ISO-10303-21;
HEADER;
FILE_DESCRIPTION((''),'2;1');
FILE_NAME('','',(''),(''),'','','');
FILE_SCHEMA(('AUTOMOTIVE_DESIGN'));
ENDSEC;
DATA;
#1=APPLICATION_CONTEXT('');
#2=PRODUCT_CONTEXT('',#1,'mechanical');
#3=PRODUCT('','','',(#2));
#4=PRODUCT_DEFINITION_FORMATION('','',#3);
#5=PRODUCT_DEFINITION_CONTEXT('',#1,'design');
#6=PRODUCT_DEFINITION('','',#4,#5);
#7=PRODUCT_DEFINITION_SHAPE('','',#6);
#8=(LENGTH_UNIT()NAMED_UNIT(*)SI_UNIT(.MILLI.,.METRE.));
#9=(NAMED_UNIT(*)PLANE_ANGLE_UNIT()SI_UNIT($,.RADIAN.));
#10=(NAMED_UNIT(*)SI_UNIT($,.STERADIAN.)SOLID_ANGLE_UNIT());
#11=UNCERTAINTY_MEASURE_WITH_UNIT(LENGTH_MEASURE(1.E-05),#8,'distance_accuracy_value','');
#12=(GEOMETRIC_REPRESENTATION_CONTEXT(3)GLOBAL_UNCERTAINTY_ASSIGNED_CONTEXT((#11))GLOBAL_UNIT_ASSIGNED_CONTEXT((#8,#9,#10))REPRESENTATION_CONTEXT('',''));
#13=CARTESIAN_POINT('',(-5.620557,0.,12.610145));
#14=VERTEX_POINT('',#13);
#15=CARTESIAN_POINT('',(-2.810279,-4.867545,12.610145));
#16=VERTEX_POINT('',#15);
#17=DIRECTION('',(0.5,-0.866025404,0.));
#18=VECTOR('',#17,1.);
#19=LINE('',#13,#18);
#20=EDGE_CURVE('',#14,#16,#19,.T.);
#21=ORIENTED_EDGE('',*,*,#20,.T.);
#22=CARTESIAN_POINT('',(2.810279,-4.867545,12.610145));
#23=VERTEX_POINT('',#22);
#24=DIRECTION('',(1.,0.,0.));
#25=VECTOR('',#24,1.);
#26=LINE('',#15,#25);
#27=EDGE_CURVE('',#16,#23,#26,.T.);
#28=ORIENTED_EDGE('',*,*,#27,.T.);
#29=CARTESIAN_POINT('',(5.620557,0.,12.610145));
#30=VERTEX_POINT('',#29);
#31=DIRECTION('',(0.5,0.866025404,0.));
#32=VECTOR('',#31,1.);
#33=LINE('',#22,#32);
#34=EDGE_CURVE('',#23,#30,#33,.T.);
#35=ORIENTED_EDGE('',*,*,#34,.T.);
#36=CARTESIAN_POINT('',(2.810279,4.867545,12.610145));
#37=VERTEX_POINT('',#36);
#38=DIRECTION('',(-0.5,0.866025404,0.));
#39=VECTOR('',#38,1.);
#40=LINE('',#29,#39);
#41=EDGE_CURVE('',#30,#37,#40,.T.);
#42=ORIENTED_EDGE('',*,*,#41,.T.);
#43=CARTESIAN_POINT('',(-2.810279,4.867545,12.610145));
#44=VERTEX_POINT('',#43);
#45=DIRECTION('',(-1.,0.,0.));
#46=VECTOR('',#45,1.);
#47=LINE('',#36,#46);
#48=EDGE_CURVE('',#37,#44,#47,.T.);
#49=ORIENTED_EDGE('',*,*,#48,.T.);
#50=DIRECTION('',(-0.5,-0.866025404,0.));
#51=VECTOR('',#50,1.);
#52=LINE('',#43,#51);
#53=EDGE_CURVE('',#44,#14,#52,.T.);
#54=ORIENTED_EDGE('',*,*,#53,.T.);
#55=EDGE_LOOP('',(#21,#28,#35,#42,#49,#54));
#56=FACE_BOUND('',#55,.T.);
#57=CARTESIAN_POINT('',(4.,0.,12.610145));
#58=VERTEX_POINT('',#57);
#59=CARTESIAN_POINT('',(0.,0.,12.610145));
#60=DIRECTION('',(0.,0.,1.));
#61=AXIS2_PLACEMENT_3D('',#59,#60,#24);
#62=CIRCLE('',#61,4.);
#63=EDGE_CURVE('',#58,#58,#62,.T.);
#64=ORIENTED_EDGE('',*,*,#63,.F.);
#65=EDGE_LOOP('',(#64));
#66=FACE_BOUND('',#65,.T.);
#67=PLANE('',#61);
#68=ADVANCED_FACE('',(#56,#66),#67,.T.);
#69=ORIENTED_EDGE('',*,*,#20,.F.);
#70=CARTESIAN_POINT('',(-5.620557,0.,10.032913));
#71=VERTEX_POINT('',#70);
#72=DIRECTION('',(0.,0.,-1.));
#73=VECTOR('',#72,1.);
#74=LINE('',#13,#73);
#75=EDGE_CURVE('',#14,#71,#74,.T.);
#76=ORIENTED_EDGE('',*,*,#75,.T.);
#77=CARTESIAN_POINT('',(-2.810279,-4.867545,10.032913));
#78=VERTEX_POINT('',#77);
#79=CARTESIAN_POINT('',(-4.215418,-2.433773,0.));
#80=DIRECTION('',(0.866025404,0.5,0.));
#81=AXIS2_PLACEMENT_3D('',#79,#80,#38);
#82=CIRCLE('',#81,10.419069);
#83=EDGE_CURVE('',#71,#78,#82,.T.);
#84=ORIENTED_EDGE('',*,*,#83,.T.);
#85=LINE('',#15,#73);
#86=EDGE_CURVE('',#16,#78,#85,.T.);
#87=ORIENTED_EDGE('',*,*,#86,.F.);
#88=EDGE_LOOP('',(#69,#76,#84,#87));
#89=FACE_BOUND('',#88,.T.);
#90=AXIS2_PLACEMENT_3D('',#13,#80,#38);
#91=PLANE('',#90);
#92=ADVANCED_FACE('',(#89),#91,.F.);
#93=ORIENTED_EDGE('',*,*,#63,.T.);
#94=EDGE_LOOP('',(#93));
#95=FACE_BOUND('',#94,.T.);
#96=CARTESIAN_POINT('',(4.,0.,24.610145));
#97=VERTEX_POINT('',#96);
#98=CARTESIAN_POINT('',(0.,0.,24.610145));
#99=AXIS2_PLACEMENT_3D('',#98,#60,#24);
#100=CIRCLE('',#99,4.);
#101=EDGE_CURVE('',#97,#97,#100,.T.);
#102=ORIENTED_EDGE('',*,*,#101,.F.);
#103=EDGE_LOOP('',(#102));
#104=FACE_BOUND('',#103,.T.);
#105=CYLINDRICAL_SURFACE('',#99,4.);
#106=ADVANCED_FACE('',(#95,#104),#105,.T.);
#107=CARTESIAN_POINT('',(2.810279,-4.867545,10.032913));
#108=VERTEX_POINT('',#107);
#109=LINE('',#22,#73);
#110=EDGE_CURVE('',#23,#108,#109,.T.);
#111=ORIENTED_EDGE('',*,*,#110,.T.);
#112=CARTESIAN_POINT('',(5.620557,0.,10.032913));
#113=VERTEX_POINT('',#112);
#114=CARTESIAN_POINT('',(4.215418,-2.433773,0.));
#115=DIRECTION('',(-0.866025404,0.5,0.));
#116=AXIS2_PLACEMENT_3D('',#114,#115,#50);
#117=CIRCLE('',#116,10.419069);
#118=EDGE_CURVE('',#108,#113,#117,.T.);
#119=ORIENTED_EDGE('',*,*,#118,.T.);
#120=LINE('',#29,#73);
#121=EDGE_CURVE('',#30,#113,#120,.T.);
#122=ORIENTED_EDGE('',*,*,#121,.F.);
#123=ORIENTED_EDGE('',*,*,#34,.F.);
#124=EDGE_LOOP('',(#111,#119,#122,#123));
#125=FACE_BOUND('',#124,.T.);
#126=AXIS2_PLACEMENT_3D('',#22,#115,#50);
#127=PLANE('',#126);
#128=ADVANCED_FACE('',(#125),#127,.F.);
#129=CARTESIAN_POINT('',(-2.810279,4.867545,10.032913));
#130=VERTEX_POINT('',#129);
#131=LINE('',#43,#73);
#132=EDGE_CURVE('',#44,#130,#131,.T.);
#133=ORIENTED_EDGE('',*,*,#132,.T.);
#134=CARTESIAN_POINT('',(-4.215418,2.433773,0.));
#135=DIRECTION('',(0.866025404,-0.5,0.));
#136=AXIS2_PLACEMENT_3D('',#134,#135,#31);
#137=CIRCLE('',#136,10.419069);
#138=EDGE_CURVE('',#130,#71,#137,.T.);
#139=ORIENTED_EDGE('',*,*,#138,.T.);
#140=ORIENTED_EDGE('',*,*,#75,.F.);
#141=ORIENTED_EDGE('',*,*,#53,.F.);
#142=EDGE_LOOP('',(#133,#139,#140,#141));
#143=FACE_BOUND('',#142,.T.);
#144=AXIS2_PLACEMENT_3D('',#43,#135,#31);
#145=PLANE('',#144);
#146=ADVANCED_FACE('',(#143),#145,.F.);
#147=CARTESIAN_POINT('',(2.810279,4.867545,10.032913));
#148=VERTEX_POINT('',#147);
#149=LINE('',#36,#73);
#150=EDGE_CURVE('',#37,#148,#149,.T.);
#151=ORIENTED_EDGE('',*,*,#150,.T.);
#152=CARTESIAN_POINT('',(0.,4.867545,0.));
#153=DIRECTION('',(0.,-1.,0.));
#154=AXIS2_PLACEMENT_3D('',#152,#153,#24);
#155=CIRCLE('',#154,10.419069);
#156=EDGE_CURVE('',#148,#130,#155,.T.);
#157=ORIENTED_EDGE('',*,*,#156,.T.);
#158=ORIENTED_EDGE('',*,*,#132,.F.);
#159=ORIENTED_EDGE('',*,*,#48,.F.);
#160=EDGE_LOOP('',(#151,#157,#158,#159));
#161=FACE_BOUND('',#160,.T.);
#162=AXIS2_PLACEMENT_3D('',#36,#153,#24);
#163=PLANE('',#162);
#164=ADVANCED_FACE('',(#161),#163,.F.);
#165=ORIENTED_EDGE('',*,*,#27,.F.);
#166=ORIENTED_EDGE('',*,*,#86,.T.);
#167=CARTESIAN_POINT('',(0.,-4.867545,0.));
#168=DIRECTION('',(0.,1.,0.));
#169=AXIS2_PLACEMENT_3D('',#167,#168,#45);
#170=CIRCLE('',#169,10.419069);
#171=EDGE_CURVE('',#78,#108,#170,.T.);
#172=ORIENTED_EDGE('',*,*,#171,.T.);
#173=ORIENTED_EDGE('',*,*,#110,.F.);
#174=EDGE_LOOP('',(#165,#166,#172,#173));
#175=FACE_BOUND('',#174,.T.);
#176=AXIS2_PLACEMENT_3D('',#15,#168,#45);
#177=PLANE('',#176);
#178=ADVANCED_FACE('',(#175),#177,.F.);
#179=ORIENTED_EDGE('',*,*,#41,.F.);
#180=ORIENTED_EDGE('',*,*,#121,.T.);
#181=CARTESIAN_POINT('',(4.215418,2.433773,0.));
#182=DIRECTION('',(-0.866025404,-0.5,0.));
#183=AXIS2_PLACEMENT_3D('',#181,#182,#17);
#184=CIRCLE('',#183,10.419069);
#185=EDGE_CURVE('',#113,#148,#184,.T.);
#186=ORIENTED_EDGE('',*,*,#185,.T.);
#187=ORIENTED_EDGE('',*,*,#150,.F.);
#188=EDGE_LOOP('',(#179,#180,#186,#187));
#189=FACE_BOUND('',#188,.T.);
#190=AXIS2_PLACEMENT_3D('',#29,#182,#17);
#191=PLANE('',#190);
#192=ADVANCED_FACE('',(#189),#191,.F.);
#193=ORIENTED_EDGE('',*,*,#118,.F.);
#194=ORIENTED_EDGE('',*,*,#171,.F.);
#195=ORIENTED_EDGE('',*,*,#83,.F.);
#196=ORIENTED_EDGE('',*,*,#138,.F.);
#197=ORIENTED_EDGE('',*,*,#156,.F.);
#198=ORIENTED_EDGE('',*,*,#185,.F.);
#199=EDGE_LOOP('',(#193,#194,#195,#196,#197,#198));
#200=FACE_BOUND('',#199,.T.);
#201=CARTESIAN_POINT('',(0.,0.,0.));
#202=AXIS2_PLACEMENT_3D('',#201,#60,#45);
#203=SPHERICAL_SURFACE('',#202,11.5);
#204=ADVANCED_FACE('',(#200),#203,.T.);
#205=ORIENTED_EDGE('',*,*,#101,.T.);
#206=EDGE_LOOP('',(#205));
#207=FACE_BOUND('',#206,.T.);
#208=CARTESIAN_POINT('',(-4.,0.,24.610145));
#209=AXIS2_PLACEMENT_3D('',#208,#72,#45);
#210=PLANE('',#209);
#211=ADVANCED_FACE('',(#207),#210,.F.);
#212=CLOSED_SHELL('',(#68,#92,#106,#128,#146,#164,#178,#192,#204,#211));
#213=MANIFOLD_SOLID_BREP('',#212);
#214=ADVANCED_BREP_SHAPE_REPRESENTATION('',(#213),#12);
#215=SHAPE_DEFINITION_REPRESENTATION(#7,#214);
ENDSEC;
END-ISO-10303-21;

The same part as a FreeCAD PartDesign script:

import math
import FreeCAD as App
import Part
import Sketcher
Q = App.Units.Quantity

doc = App.newDocument("Part")
params = doc.addObject("Spreadsheet::Sheet", "Params")
for row, (alias, value) in enumerate([
    ("sketch1_radius", "11.5 mm"),
    ("revolution_angle", "360 deg"),
    ("sketch2_width", "4 mm"),
    ("sketch2_height", "15 mm"),
    ("revolution2_angle", "360 deg"),
    ("pad1_length", "3 mm"),
], start=1):
    params.set(f"A{row}", alias)
    params.set(f"B{row}", "=" + value)
    params.setAlias(f"B{row}", alias)

body = doc.addObject("PartDesign::Body", "Body")

# Sketch on XZ plane
sketch1 = doc.addObject("Sketcher::SketchObject", "Sketch")
body.addObject(sketch1)
sketch1.AttachmentSupport = (doc.XZ_Plane, [""])
sketch1.MapMode = "FlatFace"
sketch1.addGeometry(Part.LineSegment(App.Vector(0, 12, 0), App.Vector(0, -12, 0)), False)
sketch1.addGeometry(Part.ArcOfCircle(Part.Circle(App.Vector(0, 0, 0), App.Vector(0, 0, 1), 12), math.radians(90), math.radians(270)), False)
sketch1.addConstraint(Sketcher.Constraint("Coincident", 0, 1, 1, 1))
sketch1.addConstraint(Sketcher.Constraint("Coincident", 1, 2, 0, 2))
sketch1.addConstraint(Sketcher.Constraint("Vertical", 0))
sketch1.addConstraint(Sketcher.Constraint("Coincident", 1, 3, -1, 1))
sketch1.addConstraint(Sketcher.Constraint("PointOnObject", 0, 1, -2))
sketch1.addConstraint(Sketcher.Constraint("Radius", 1, 11.5))
sketch1.setExpression("Constraints[5]", "Params.sketch1_radius")
revolution = doc.addObject("PartDesign::Revolution", "Revolution")
body.addObject(revolution)
revolution.Profile = sketch1
revolution.ReferenceAxis = (sketch1, ["V_Axis"])
revolution.setExpression("Angle", "Params.revolution_angle")

# Sketch on XZ plane
sketch2 = doc.addObject("Sketcher::SketchObject", "Sketch001")
body.addObject(sketch2)
sketch2.AttachmentSupport = (doc.XZ_Plane, [""])
sketch2.MapMode = "FlatFace"
sketch2.addGeometry(Part.LineSegment(App.Vector(-4, 9.6, 0), App.Vector(-4, 24.6, 0)), False)
sketch2.addGeometry(Part.LineSegment(App.Vector(-4, 24.6, 0), App.Vector(0, 24.6, 0)), False)
sketch2.addGeometry(Part.LineSegment(App.Vector(0, 24.6, 0), App.Vector(0, 9.6, 0)), False)
sketch2.addGeometry(Part.LineSegment(App.Vector(0, 9.6, 0), App.Vector(-4, 9.6, 0)), False)
sketch2.addConstraint(Sketcher.Constraint("Coincident", 0, 2, 1, 1))
sketch2.addConstraint(Sketcher.Constraint("Coincident", 1, 2, 2, 1))
sketch2.addConstraint(Sketcher.Constraint("Coincident", 2, 2, 3, 1))
sketch2.addConstraint(Sketcher.Constraint("Coincident", 3, 2, 0, 1))
sketch2.addConstraint(Sketcher.Constraint("Vertical", 0))
sketch2.addConstraint(Sketcher.Constraint("Horizontal", 1))
sketch2.addConstraint(Sketcher.Constraint("Vertical", 2))
sketch2.addConstraint(Sketcher.Constraint("Horizontal", 3))
sketch2.addConstraint(Sketcher.Constraint("PointOnObject", 1, 2, -2))
sketch2.addConstraint(Sketcher.Constraint("DistanceX", 1, 1, 1, 2, 4.0))
sketch2.addConstraint(Sketcher.Constraint("DistanceY", 0, 1, 0, 2, 15.0))
sketch2.addConstraint(Sketcher.Constraint("DistanceY", -1, 1, 0, 2, 24.610145))
sketch2.setExpression("Constraints[9]", "Params.sketch2_width")
sketch2.setExpression("Constraints[10]", "Params.sketch2_height")
revolution2 = doc.addObject("PartDesign::Revolution", "Revolution001")
body.addObject(revolution2)
revolution2.Profile = sketch2
revolution2.ReferenceAxis = (sketch2, ["V_Axis"])
revolution2.setExpression("Angle", "Params.revolution2_angle")

# Sketch on XY plane
sketch3 = doc.addObject("Sketcher::SketchObject", "Sketch002")
body.addObject(sketch3)
sketch3.AttachmentSupport = (doc.XY_Plane, [""])
sketch3.MapMode = "FlatFace"
sketch3.AttachmentOffset = App.Placement(App.Vector(0, 0, 9.610145), App.Rotation())
sketch3.addGeometry(Part.LineSegment(App.Vector(3, 5, 0), App.Vector(-3, 5, 0)), False)
sketch3.addGeometry(Part.LineSegment(App.Vector(-3, 5, 0), App.Vector(-6, 0, 0)), False)
sketch3.addGeometry(Part.LineSegment(App.Vector(-6, 0, 0), App.Vector(-3, -5, 0)), False)
sketch3.addGeometry(Part.LineSegment(App.Vector(-3, -5, 0), App.Vector(3, -5, 0)), False)
sketch3.addGeometry(Part.LineSegment(App.Vector(3, -5, 0), App.Vector(6, 0, 0)), False)
sketch3.addGeometry(Part.LineSegment(App.Vector(6, 0, 0), App.Vector(3, 5, 0)), False)
sketch3.addConstraint(Sketcher.Constraint("Coincident", 0, 2, 1, 1))
sketch3.addConstraint(Sketcher.Constraint("Coincident", 1, 2, 2, 1))
sketch3.addConstraint(Sketcher.Constraint("Coincident", 2, 2, 3, 1))
sketch3.addConstraint(Sketcher.Constraint("Coincident", 3, 2, 4, 1))
sketch3.addConstraint(Sketcher.Constraint("Coincident", 4, 2, 5, 1))
sketch3.addConstraint(Sketcher.Constraint("Coincident", 5, 2, 0, 1))
sketch3.addConstraint(Sketcher.Constraint("Horizontal", 0))
sketch3.addConstraint(Sketcher.Constraint("Horizontal", 3))
sketch3.addConstraint(Sketcher.Constraint("Symmetric", 0, 2, 3, 2, -1, 1))
sketch3.addConstraint(Sketcher.Constraint("Symmetric", 1, 2, 4, 2, -1, 1))
sketch3.addConstraint(Sketcher.Constraint("PointOnObject", 1, 2, -1))
sketch3.addConstraint(Sketcher.Constraint("Parallel", 2, 5))
sketch3.addConstraint(Sketcher.Constraint("Vertical", 0, 2, 2, 2))
sketch3.addConstraint(Sketcher.Constraint("Angle", 1, Q("-120 deg")))
sketch3.addConstraint(Sketcher.Constraint("DistanceX", 0, 2, 0, 1, 5.620557))
sketch3.addConstraint(Sketcher.Constraint("DistanceX", 1, 2, 0, 2, 2.810279))
pad1 = doc.addObject("PartDesign::Pad", "Pad")
body.addObject(pad1)
pad1.Profile = sketch3
pad1.setExpression("Length", "Params.pad1_length")

doc.recompute()
